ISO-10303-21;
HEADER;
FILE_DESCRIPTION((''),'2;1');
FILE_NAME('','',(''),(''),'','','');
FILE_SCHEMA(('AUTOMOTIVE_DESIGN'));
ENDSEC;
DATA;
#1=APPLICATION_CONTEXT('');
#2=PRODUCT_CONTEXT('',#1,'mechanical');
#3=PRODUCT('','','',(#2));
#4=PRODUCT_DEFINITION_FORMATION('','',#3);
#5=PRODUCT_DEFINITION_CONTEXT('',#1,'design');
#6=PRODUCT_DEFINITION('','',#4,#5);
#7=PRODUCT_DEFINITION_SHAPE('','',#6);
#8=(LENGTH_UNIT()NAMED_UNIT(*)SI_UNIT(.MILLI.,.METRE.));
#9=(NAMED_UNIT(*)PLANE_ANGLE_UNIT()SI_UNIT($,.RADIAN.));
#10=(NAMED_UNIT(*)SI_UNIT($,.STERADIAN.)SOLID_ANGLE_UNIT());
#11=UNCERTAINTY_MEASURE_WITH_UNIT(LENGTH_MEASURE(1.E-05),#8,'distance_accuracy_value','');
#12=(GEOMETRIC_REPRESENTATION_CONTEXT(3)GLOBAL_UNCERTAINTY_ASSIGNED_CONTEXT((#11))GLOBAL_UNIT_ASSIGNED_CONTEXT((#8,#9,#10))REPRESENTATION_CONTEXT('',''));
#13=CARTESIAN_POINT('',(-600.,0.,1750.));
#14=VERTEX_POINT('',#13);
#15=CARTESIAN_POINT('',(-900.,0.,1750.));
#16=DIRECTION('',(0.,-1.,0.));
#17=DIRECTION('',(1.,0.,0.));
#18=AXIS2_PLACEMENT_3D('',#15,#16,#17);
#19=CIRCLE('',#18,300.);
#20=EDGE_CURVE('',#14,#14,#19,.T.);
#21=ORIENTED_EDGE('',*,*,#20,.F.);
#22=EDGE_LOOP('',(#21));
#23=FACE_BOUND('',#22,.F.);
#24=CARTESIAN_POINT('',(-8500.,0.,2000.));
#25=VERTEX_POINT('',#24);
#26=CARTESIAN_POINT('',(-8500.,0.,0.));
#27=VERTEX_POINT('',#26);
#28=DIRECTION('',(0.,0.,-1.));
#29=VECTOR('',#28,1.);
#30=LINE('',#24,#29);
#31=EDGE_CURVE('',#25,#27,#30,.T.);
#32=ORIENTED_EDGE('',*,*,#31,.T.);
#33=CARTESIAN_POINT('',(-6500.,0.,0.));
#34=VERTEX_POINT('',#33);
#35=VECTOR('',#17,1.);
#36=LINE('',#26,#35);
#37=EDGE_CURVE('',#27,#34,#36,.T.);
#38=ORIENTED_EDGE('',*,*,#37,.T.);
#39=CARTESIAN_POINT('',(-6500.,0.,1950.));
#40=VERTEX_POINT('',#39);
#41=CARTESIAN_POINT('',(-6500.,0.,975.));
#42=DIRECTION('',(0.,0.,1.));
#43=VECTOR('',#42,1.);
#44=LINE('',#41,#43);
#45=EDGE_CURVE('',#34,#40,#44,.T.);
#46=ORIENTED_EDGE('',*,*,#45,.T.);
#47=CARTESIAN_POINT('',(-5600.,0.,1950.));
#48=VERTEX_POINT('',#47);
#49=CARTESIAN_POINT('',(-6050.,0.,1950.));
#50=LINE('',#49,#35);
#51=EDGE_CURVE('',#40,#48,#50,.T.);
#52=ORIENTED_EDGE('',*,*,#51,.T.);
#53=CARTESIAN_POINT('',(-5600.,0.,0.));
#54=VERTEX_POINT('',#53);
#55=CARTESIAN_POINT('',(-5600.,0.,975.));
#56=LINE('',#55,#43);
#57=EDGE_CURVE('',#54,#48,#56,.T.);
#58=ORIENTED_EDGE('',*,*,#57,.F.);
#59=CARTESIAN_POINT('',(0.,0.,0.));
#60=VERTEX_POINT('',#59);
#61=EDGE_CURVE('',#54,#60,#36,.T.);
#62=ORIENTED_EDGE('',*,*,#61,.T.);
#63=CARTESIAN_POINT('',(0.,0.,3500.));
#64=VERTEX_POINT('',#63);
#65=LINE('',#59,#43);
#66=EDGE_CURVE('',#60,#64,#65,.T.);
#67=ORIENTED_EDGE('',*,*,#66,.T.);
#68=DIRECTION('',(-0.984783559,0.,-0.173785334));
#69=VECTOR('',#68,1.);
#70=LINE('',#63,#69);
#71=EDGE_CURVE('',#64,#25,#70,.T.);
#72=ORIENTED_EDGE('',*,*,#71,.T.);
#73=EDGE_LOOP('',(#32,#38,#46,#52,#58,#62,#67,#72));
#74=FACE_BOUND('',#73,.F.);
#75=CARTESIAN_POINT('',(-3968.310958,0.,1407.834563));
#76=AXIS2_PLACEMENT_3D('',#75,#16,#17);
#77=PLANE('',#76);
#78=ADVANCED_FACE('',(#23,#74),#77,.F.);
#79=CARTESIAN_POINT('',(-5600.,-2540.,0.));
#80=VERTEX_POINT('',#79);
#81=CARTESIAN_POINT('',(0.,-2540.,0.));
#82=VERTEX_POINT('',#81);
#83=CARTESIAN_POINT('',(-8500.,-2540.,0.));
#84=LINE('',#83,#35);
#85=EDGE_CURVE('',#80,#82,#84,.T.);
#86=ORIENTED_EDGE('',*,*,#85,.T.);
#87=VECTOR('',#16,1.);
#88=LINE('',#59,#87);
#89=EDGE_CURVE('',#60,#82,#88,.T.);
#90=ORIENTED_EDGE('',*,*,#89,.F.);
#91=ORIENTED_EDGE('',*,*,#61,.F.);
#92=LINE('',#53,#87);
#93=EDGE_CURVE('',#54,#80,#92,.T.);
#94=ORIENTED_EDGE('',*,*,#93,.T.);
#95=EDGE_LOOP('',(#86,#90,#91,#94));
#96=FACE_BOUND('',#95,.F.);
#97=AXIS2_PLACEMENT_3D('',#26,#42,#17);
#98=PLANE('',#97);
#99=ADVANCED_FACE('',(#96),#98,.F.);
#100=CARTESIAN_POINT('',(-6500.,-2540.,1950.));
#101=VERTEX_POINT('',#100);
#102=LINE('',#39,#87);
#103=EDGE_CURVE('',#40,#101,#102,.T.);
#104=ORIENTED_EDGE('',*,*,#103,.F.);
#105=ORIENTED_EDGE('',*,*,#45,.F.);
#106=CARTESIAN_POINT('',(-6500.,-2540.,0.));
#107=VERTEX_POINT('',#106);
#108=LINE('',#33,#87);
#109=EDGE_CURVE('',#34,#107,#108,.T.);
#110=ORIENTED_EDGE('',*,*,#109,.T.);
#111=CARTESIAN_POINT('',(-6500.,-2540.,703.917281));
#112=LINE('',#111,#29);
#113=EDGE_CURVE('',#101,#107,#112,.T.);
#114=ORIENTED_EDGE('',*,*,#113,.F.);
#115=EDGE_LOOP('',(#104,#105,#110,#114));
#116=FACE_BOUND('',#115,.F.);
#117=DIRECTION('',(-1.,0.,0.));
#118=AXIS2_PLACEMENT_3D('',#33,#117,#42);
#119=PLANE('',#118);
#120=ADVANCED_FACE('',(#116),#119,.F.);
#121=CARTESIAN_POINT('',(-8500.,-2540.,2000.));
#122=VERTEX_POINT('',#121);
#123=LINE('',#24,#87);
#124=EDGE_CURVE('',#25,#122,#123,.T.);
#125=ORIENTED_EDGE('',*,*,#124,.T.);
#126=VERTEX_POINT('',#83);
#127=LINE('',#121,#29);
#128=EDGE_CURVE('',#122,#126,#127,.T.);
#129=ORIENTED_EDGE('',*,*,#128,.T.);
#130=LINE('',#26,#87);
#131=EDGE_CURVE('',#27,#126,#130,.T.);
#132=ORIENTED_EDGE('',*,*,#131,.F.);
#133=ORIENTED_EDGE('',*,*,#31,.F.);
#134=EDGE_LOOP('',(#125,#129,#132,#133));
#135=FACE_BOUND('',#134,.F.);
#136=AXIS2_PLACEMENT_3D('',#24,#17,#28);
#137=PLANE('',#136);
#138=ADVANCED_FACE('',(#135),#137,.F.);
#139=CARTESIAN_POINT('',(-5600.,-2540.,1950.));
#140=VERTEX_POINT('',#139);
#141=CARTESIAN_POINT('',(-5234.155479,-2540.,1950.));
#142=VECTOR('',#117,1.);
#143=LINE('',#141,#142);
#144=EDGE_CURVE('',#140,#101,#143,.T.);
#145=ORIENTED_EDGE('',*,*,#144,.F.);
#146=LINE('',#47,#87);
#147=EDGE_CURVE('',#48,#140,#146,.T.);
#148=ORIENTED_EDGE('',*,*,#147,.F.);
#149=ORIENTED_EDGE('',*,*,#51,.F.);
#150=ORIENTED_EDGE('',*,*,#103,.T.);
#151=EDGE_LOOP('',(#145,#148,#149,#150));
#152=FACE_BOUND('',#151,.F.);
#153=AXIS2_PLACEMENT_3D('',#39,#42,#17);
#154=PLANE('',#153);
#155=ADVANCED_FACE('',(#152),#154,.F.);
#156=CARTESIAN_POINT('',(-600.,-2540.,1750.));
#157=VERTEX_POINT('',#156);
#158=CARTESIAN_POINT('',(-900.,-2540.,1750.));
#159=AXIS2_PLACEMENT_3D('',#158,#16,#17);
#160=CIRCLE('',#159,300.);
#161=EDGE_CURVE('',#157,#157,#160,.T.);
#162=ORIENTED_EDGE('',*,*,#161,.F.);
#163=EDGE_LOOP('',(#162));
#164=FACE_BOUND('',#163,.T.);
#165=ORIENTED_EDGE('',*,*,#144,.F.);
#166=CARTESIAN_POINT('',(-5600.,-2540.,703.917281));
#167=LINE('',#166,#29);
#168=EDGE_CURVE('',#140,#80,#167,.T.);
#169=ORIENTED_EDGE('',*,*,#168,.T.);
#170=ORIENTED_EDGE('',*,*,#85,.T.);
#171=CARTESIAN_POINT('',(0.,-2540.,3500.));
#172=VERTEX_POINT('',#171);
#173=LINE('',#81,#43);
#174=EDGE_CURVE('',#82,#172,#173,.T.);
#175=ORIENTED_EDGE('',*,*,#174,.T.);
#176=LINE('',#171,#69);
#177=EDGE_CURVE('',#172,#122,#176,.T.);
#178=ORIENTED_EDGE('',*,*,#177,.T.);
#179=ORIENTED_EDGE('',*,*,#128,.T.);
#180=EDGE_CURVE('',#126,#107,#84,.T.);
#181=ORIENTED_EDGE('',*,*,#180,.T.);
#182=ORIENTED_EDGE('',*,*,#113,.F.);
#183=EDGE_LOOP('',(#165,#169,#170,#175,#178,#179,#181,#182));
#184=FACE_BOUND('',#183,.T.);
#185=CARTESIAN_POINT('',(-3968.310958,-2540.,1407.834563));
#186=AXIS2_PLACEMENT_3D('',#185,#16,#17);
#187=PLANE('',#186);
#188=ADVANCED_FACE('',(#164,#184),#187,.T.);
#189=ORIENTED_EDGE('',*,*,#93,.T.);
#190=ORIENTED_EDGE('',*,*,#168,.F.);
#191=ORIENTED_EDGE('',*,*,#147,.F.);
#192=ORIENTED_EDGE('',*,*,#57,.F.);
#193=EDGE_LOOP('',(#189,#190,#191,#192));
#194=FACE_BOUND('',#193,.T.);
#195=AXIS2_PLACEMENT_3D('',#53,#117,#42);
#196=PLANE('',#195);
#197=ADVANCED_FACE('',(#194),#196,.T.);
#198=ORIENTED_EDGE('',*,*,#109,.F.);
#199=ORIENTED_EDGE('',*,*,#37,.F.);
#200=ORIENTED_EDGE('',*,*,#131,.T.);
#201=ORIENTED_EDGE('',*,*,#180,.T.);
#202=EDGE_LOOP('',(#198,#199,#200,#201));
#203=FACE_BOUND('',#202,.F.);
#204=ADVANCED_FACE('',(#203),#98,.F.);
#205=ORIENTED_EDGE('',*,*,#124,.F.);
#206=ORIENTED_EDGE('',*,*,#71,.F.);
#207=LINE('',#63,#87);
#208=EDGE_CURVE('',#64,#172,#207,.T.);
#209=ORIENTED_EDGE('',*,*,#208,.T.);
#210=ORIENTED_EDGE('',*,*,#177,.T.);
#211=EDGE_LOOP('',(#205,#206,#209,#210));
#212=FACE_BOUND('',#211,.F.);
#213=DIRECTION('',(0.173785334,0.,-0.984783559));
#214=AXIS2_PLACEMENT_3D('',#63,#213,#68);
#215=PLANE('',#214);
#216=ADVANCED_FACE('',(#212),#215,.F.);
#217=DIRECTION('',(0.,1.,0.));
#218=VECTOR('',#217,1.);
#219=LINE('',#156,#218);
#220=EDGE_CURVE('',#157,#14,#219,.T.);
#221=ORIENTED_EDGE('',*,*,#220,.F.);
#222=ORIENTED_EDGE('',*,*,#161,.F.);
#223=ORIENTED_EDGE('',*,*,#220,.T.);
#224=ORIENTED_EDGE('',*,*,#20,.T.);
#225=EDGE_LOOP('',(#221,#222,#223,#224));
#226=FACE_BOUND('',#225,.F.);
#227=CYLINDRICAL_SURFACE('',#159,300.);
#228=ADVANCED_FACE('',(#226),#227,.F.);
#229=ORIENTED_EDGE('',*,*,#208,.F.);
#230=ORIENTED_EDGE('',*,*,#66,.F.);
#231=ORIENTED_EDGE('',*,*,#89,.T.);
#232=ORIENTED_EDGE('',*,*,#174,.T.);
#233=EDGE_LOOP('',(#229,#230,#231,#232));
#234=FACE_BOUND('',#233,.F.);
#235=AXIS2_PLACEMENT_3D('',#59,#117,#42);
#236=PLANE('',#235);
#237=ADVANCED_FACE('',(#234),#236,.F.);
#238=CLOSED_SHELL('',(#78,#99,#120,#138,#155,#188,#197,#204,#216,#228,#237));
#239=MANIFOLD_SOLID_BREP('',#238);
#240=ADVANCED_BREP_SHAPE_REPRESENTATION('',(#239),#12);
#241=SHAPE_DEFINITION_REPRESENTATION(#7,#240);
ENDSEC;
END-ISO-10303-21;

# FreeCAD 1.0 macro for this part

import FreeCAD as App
import Part
import Sketcher

V = App.Vector

doc = App.newDocument("Part")
body = doc.addObject("PartDesign::Body", "Body")

# Sketch on XZ plane
sketch1 = body.newObject("Sketcher::SketchObject", "Sketch")
sketch1.AttachmentSupport = (doc.getObject("XZ_Plane"), [""])
sketch1.MapMode = "FlatFace"
sketch1.addGeometry([
    Part.LineSegment(V(-8500, 0, 0), V(0, 0, 0)),
    Part.LineSegment(V(0, 0, 0), V(0, 3500, 0)),
    Part.LineSegment(V(0, 3500, 0), V(-8500, 2000, 0)),
    Part.LineSegment(V(-8500, 2000, 0), V(-8500, 0, 0)),
], False)
sketch1.addConstraint([
    Sketcher.Constraint("Coincident", 0, 2, 1, 1),
    Sketcher.Constraint("Coincident", 1, 2, 2, 1),
    Sketcher.Constraint("Coincident", 2, 2, 3, 1),
    Sketcher.Constraint("Coincident", 3, 2, 0, 1),
    Sketcher.Constraint("Horizontal", 0),
    Sketcher.Constraint("Vertical", 1),
    Sketcher.Constraint("Vertical", 3),
    Sketcher.Constraint("Coincident", 0, 2, -1, 1),
    Sketcher.Constraint("DistanceX", 0, 1, 0, 2, 8500.0),
    Sketcher.Constraint("DistanceY", 1, 1, 1, 2, 3500.0),
    Sketcher.Constraint("DistanceY", 3, 2, 3, 1, 2000.0),
])
pad1 = body.newObject("PartDesign::Pad", "Pad")
pad1.Profile = sketch1
pad1.Length = 2540

# Sketch on XZ plane
sketch2 = body.newObject("Sketcher::SketchObject", "Sketch001")
sketch2.AttachmentSupport = (doc.getObject("XZ_Plane"), [""])
sketch2.MapMode = "FlatFace"
sketch2.addGeometry([
    Part.LineSegment(V(-6500, 1950, 0), V(-6500, 0, 0)),
    Part.LineSegment(V(-6500, 0, 0), V(-5600, 0, 0)),
    Part.LineSegment(V(-5600, 0, 0), V(-5600, 1950, 0)),
    Part.LineSegment(V(-5600, 1950, 0), V(-6500, 1950, 0)),
], False)
sketch2.addConstraint([
    Sketcher.Constraint("Coincident", 0, 2, 1, 1),
    Sketcher.Constraint("Coincident", 1, 2, 2, 1),
    Sketcher.Constraint("Coincident", 2, 2, 3, 1),
    Sketcher.Constraint("Coincident", 3, 2, 0, 1),
    Sketcher.Constraint("Vertical", 0),
    Sketcher.Constraint("Horizontal", 1),
    Sketcher.Constraint("Vertical", 2),
    Sketcher.Constraint("Horizontal", 3),
    Sketcher.Constraint("PointOnObject", 0, 2, -1),
    Sketcher.Constraint("DistanceX", 1, 1, 1, 2, 900.0),
    Sketcher.Constraint("DistanceY", 0, 2, 0, 1, 1950.0),
    Sketcher.Constraint("DistanceX", 0, 2, -1, 1, 6500.0),
])
pocket1 = body.newObject("PartDesign::Pocket", "Pocket")
pocket1.Profile = sketch2
pocket1.Type = "ThroughAll"
pocket1.Reversed = True

# Sketch on XZ plane
sketch3 = body.newObject("Sketcher::SketchObject", "Sketch002")
sketch3.AttachmentSupport = (doc.getObject("XZ_Plane"), [""])
sketch3.MapMode = "FlatFace"
sketch3.AttachmentOffset = App.Placement(V(0, 0, 2540), App.Rotation())
sketch3.addGeometry(Part.Circle(V(-900, 1750, 0), V(0, 0, 1), 300), False)
sketch3.addConstraint([
    Sketcher.Constraint("Diameter", 0, 600.0),
    Sketcher.Constraint("DistanceX", 0, 3, -1, 1, 900.0),
    Sketcher.Constraint("DistanceY", -1, 1, 0, 3, 1750.0),
])
pocket2 = body.newObject("PartDesign::Pocket", "Pocket001")
pocket2.Profile = sketch3
pocket2.Type = "ThroughAll"

doc.recompute()
